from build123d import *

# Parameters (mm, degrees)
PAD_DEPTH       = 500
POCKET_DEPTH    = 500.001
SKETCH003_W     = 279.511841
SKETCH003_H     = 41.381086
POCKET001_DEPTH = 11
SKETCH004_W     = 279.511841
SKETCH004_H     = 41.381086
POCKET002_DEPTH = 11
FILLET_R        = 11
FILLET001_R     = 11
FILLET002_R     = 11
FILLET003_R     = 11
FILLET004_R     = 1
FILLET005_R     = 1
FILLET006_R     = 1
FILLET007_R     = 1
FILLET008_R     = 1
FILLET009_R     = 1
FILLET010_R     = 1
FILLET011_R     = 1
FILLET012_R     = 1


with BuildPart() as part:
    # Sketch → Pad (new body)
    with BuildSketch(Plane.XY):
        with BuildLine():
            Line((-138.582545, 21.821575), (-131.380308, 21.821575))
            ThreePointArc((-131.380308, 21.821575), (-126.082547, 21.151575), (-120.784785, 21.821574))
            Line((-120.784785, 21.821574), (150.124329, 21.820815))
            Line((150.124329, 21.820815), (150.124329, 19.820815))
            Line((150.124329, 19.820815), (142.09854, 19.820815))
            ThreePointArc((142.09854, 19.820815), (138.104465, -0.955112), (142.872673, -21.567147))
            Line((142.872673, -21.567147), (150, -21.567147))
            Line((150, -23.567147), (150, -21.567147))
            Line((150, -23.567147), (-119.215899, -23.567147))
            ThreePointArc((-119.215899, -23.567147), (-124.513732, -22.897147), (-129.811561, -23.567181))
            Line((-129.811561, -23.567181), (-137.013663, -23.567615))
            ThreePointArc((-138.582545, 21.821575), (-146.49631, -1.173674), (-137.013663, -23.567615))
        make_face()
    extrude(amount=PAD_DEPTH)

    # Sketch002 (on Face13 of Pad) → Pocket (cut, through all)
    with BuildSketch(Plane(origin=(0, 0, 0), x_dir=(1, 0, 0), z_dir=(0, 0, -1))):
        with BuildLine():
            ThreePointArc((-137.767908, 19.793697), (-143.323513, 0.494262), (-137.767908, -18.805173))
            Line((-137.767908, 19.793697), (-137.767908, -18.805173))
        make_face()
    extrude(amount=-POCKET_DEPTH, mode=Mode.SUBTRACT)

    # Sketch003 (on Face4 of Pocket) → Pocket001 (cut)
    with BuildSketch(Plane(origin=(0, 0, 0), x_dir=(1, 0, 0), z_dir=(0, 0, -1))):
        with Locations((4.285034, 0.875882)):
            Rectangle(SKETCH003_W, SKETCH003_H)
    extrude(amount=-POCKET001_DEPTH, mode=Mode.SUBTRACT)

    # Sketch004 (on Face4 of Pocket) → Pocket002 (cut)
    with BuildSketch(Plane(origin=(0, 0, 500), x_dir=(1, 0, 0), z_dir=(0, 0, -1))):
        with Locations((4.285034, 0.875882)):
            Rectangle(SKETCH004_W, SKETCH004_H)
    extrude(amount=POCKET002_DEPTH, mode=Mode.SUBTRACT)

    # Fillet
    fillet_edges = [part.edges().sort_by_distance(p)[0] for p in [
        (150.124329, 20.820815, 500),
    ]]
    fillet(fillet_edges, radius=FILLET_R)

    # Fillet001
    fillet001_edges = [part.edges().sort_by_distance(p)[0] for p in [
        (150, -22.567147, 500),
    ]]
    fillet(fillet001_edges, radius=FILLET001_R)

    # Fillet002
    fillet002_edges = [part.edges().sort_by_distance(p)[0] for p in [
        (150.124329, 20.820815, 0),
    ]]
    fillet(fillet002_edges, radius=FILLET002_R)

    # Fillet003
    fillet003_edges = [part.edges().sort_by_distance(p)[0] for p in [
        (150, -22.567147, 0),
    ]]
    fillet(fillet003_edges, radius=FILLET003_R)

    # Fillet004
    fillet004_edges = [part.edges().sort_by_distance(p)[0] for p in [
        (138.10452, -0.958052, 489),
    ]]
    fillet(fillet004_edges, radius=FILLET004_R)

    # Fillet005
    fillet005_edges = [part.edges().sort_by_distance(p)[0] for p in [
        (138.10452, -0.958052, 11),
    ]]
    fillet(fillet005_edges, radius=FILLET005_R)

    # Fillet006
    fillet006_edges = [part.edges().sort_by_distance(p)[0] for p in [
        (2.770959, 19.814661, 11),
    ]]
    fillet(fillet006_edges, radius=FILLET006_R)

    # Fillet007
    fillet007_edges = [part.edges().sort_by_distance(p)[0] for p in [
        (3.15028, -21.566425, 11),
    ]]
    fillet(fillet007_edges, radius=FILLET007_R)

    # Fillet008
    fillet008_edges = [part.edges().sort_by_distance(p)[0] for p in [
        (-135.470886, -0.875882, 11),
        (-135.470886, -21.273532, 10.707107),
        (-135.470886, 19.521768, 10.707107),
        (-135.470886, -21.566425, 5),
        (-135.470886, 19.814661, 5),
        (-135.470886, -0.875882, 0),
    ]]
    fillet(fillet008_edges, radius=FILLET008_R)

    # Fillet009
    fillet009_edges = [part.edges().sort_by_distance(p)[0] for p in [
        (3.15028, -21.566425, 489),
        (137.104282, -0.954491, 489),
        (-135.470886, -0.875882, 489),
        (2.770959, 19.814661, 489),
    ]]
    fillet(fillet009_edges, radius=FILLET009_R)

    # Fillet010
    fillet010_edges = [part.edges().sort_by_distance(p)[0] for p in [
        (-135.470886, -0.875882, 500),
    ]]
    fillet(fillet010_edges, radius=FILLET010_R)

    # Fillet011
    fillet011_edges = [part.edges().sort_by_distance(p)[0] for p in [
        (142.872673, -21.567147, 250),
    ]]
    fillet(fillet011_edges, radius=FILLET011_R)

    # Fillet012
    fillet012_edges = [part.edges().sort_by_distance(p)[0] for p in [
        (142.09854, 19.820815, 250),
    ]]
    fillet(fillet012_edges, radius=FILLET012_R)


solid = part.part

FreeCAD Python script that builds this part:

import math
import FreeCAD as App
import Part
import Sketcher

V = App.Vector


def edges_at(feature, points):
    """Names of the edges that pass closest to the given points."""
    edges = feature.Shape.Edges
    near = lambda p: min(range(len(edges)), key=lambda i: edges[i].distToShape(Part.Vertex(*p))[0])
    return sorted({f"Edge{near(p) + 1}" for p in points})


def add_polygon(sketch, points):
    """Adds a closed chain of lines whose ends are joined by coincident constraints."""
    first, n = sketch.GeometryCount, len(points)
    for a, b in zip(points, points[1:] + points[:1]):
        sketch.addGeometry(Part.LineSegment(App.Vector(*a, 0), App.Vector(*b, 0)), False)
    for i in range(n):
        sketch.addConstraint(Sketcher.Constraint("Coincident", first + i, 2, first + (i + 1) % n, 1))

doc = App.newDocument("Part")
params = doc.addObject("Spreadsheet::Sheet", "Params")
for row, (alias, value) in enumerate([
    ("sketch1_height", "2 mm"),
    ("sketch1_radius", "21.279998 mm"),
    ("pad1_length", "500 mm"),
    ("pocket2_length", "11 mm"),
    ("pocket3_length", "11 mm"),
    ("fillet_radius", "11 mm"),
    ("fillet2_radius", "11 mm"),
    ("fillet3_radius", "11 mm"),
    ("fillet4_radius", "11 mm"),
    ("fillet5_radius", "1 mm"),
    ("fillet6_radius", "1 mm"),
    ("fillet7_radius", "1 mm"),
    ("fillet8_radius", "1 mm"),
    ("fillet9_radius", "1 mm"),
    ("fillet10_radius", "1 mm"),
    ("fillet11_radius", "1 mm"),
    ("fillet12_radius", "1 mm"),
    ("fillet13_radius", "1 mm"),
], start=1):
    params.set(f"A{row}", alias)
    params.set(f"B{row}", "=" + value)
    params.setAlias(f"B{row}", alias)

body = doc.addObject("PartDesign::Body", "Body")

# Sketch on XY plane
sketch1 = doc.addObject("Sketcher::SketchObject", "Sketch")
body.addObject(sketch1)
sketch1.AttachmentSupport = (doc.XY_Plane, [""])
sketch1.MapMode = "FlatFace"
sketch1.addGeometry([
    Part.LineSegment(V(-131.4, 21.8, 0), V(-138.6, 21.8, 0)),  # 0
    Part.ArcOfCircle(Part.Circle(V(-112.5, 0, 0), V(0, 0, 1), 34), math.radians(140), math.radians(224)),  # 1
    Part.LineSegment(V(-137, -23.6, 0), V(-129.8, -23.6, 0)),  # 2
    Part.ArcOfCircle(Part.Circle(V(-124.5, -44.2, 0), V(0, 0, 1), 21.3), math.radians(76), math.radians(104)),  # 3
    Part.LineSegment(V(-119.2, -23.6, 0), V(150, -23.6, 0)),  # 4
    Part.LineSegment(V(150, -23.6, 0), V(150, -21.6, 0)),  # 5
    Part.LineSegment(V(150, -21.6, 0), V(142.9, -21.6, 0)),  # 6
    Part.ArcOfCircle(Part.Circle(V(189.2, 0, 0), V(0, 0, 1), 51.1), math.radians(157), math.radians(205)),  # 7
    Part.LineSegment(V(142.1, 19.8, 0), V(150.1, 19.8, 0)),  # 8
    Part.LineSegment(V(150.1, 19.8, 0), V(150.1, 21.8, 0)),  # 9
    Part.LineSegment(V(150.1, 21.8, 0), V(-120.8, 21.8, 0)),  # 10
    Part.ArcOfCircle(Part.Circle(V(-126.1, 42.4, 0), V(0, 0, 1), 21.3), math.radians(-104), math.radians(-76)),  # 11
], False)
sketch1.addConstraint([
    Sketcher.Constraint("Coincident", 0, 2, 1, 1),
    Sketcher.Constraint("Coincident", 1, 2, 2, 1),
    Sketcher.Constraint("Coincident", 2, 2, 3, 2),
    Sketcher.Constraint("Coincident", 3, 1, 4, 1),
    Sketcher.Constraint("Coincident", 4, 2, 5, 1),
    Sketcher.Constraint("Coincident", 5, 2, 6, 1),
    Sketcher.Constraint("Coincident", 6, 2, 7, 2),
    Sketcher.Constraint("Coincident", 7, 1, 8, 1),
    Sketcher.Constraint("Coincident", 8, 2, 9, 1),
    Sketcher.Constraint("Coincident", 9, 2, 10, 1),
    Sketcher.Constraint("Coincident", 10, 2, 11, 2),
    Sketcher.Constraint("Coincident", 11, 1, 0, 1),
    Sketcher.Constraint("Horizontal", 0),
    Sketcher.Constraint("Horizontal", 4),
    Sketcher.Constraint("Vertical", 5),
    Sketcher.Constraint("Horizontal", 6),
    Sketcher.Constraint("Horizontal", 8),
    Sketcher.Constraint("Vertical", 9),
    Sketcher.Constraint("PointOnObject", 1, 3, -1),
    Sketcher.Constraint("PointOnObject", 7, 3, -1),
    Sketcher.Constraint("Horizontal", 0, 2, 10, 2),
    Sketcher.Constraint("Equal", 5, 9),
    Sketcher.Constraint("DistanceY", 5, 1, 5, 2, 2.0),
    Sketcher.Constraint("Radius", 11, 21.279998),
    Sketcher.Constraint("DistanceX", -1, 1, 4, 2, 150.0),
    Sketcher.Constraint("DistanceX", 0, 2, 11, 3, 12.5),
    Sketcher.Constraint("DistanceX", 1, 2, 3, 3, 12.499999),
    Sketcher.Constraint("Radius", 3, 21.280009),
    Sketcher.Constraint("DistanceY", 0, 2, 11, 3, 20.609998),
    Sketcher.Constraint("DistanceX", 4, 1, 4, 2, 269.215899),
    Sketcher.Constraint("Radius", 1, 33.975753),
    Sketcher.Constraint("Radius", 7, 51.072707),
    Sketcher.Constraint("DistanceX", 8, 1, 8, 2, 8.025789),
    Sketcher.Constraint("DistanceX", 7, 1, 7, 3, 47.0697),
    Sketcher.Constraint("DistanceX", 6, 2, 6, 1, 7.127327),
    Sketcher.Constraint("DistanceX", -1, 1, 7, 3, 189.16824),
    Sketcher.Constraint("DistanceX", 2, 2, -1, 1, 129.811561),
    Sketcher.Constraint("DistanceY", 2, 2, -1, 1, 23.567181),
    Sketcher.Constraint("DistanceX", 11, 1, -1, 1, 131.380308),
    Sketcher.Constraint("DistanceX", 3, 3, 1, 3, 11.972829),
])
sketch1.setExpression("Constraints[22]", "Params.sketch1_height")
sketch1.setExpression("Constraints[23]", "Params.sketch1_radius")
pad1 = doc.addObject("PartDesign::Pad", "Pad")
body.addObject(pad1)
pad1.Profile = sketch1
pad1.setExpression("Length", "Params.pad1_length")

# Sketch on XY plane
sketch2 = doc.addObject("Sketcher::SketchObject", "Sketch001")
body.addObject(sketch2)
sketch2.AttachmentSupport = (doc.XY_Plane, [""])
sketch2.MapMode = "FlatFace"
sketch2.addGeometry([
    Part.ArcOfCircle(Part.Circle(V(-107, 0, 0), V(0, 0, 1), 36), math.radians(148), math.radians(212)),
    Part.LineSegment(V(-138, 19, 0), V(-138, -20, 0)),
], False)
sketch2.addConstraint([
    Sketcher.Constraint("Coincident", 0, 1, 1, 1),
    Sketcher.Constraint("Coincident", 1, 2, 0, 2),
    Sketcher.Constraint("Vertical", 1),
    Sketcher.Constraint("Radius", 0, 36.299641),
    Sketcher.Constraint("DistanceY", 1, 2, 1, 1, 38.59887),
    Sketcher.Constraint("DistanceX", 0, 3, -1, 1, 107.023872),
    Sketcher.Constraint("DistanceY", 0, 3, -1, 1, 0.494262),
])
pocket1 = doc.addObject("PartDesign::Pocket", "Pocket")
body.addObject(pocket1)
pocket1.Profile = sketch2
pocket1.Type = "ThroughAll"
pocket1.Reversed = True

# Sketch on XY plane
sketch3 = doc.addObject("Sketcher::SketchObject", "Sketch002")
body.addObject(sketch3)
sketch3.AttachmentSupport = (doc.XY_Plane, [""])
sketch3.MapMode = "FlatFace"
add_polygon(sketch3, [(-135, -22), (-135, 20), (144, 20), (144, -22)])  # lines 0-3
sketch3.addConstraint([
    Sketcher.Constraint("Vertical", 0),
    Sketcher.Constraint("Horizontal", 1),
    Sketcher.Constraint("Vertical", 2),
    Sketcher.Constraint("Horizontal", 3),
    Sketcher.Constraint("DistanceX", 1, 1, 1, 2, 279.511841),
    Sketcher.Constraint("DistanceY", 0, 1, 0, 2, 41.381086),
    Sketcher.Constraint("DistanceY", -1, 1, 0, 2, 19.814661),
    Sketcher.Constraint("DistanceX", 0, 2, -1, 1, 135.470887),
])
pocket2 = doc.addObject("PartDesign::Pocket", "Pocket001")
body.addObject(pocket2)
pocket2.Profile = sketch3
pocket2.setExpression("Length", "Params.pocket2_length")
pocket2.Reversed = True

# Sketch on XY plane
sketch4 = doc.addObject("Sketcher::SketchObject", "Sketch003")
body.addObject(sketch4)
sketch4.AttachmentSupport = (doc.XY_Plane, [""])
sketch4.MapMode = "FlatFace"
sketch4.AttachmentOffset = App.Placement(V(0, 0, 500), App.Rotation())
add_polygon(sketch4, [(-135, -22), (-135, 20), (144, 20), (144, -22)])  # lines 0-3
sketch4.addConstraint([
    Sketcher.Constraint("Vertical", 0),
    Sketcher.Constraint("Horizontal", 1),
    Sketcher.Constraint("Vertical", 2),
    Sketcher.Constraint("Horizontal", 3),
    Sketcher.Constraint("DistanceX", 1, 1, 1, 2, 279.511841),
    Sketcher.Constraint("DistanceY", 0, 1, 0, 2, 41.381086),
    Sketcher.Constraint("DistanceY", -1, 1, 0, 2, 19.814661),
    Sketcher.Constraint("DistanceX", 0, 2, -1, 1, 135.470887),
])
pocket3 = doc.addObject("PartDesign::Pocket", "Pocket002")
body.addObject(pocket3)
pocket3.Profile = sketch4
pocket3.setExpression("Length", "Params.pocket3_length")
doc.recompute()

fillet = doc.addObject("PartDesign::Fillet", "Fillet")
body.addObject(fillet)
fillet.Base = (pocket3, edges_at(pocket3, [(150.124, 20.821, 500)]))
fillet.setExpression("Radius", "Params.fillet_radius")
doc.recompute()

fillet2 = doc.addObject("PartDesign::Fillet", "Fillet001")
body.addObject(fillet2)
fillet2.Base = (fillet, edges_at(fillet, [(150, -22.567, 500)]))
fillet2.setExpression("Radius", "Params.fillet2_radius")
doc.recompute()

fillet3 = doc.addObject("PartDesign::Fillet", "Fillet002")
body.addObject(fillet3)
fillet3.Base = (fillet2, edges_at(fillet2, [(150.124, 20.821, 0)]))
fillet3.setExpression("Radius", "Params.fillet3_radius")
doc.recompute()

fillet4 = doc.addObject("PartDesign::Fillet", "Fillet003")
body.addObject(fillet4)
fillet4.Base = (fillet3, edges_at(fillet3, [(150, -22.567, 0)]))
fillet4.setExpression("Radius", "Params.fillet4_radius")
doc.recompute()

fillet5 = doc.addObject("PartDesign::Fillet", "Fillet004")
body.addObject(fillet5)
fillet5.Base = (fillet4, edges_at(fillet4, [(138.105, -0.958, 489)]))
fillet5.setExpression("Radius", "Params.fillet5_radius")
doc.recompute()

fillet6 = doc.addObject("PartDesign::Fillet", "Fillet005")
body.addObject(fillet6)
fillet6.Base = (fillet5, edges_at(fillet5, [(138.105, -0.958, 11)]))
fillet6.setExpression("Radius", "Params.fillet6_radius")
doc.recompute()

fillet7 = doc.addObject("PartDesign::Fillet", "Fillet006")
body.addObject(fillet7)
fillet7.Base = (fillet6, edges_at(fillet6, [(2.771, 19.815, 11)]))
fillet7.setExpression("Radius", "Params.fillet7_radius")
doc.recompute()

fillet8 = doc.addObject("PartDesign::Fillet", "Fillet007")
body.addObject(fillet8)
fillet8.Base = (fillet7, edges_at(fillet7, [(3.15, -21.566, 11)]))
fillet8.setExpression("Radius", "Params.fillet8_radius")
doc.recompute()

fillet9 = doc.addObject("PartDesign::Fillet", "Fillet008")
body.addObject(fillet9)
fillet9.Base = (fillet8, edges_at(fillet8, [
    (-135.471, -0.876, 11),
    (-135.471, -21.274, 10.707),
    (-135.471, 19.522, 10.707),
    (-135.471, -21.566, 5),
    (-135.471, 19.815, 5),
    (-135.471, -0.876, 0),
]))
fillet9.setExpression("Radius", "Params.fillet9_radius")
doc.recompute()

fillet10 = doc.addObject("PartDesign::Fillet", "Fillet009")
body.addObject(fillet10)
fillet10.Base = (fillet9, edges_at(fillet9, [
    (3.15, -21.566, 489),
    (137.104, -0.954, 489),
    (-135.471, -0.876, 489),
    (2.771, 19.815, 489),
]))
fillet10.setExpression("Radius", "Params.fillet10_radius")
doc.recompute()

fillet11 = doc.addObject("PartDesign::Fillet", "Fillet010")
body.addObject(fillet11)
fillet11.Base = (fillet10, edges_at(fillet10, [(-135.471, -0.876, 500)]))
fillet11.setExpression("Radius", "Params.fillet11_radius")
doc.recompute()

fillet12 = doc.addObject("PartDesign::Fillet", "Fillet011")
body.addObject(fillet12)
fillet12.Base = (fillet11, edges_at(fillet11, [(142.873, -21.567, 250)]))
fillet12.setExpression("Radius", "Params.fillet12_radius")
doc.recompute()

fillet13 = doc.addObject("PartDesign::Fillet", "Fillet012")
body.addObject(fillet13)
fillet13.Base = (fillet12, edges_at(fillet12, [(142.099, 19.821, 250)]))
fillet13.setExpression("Radius", "Params.fillet13_radius")

doc.recompute()
